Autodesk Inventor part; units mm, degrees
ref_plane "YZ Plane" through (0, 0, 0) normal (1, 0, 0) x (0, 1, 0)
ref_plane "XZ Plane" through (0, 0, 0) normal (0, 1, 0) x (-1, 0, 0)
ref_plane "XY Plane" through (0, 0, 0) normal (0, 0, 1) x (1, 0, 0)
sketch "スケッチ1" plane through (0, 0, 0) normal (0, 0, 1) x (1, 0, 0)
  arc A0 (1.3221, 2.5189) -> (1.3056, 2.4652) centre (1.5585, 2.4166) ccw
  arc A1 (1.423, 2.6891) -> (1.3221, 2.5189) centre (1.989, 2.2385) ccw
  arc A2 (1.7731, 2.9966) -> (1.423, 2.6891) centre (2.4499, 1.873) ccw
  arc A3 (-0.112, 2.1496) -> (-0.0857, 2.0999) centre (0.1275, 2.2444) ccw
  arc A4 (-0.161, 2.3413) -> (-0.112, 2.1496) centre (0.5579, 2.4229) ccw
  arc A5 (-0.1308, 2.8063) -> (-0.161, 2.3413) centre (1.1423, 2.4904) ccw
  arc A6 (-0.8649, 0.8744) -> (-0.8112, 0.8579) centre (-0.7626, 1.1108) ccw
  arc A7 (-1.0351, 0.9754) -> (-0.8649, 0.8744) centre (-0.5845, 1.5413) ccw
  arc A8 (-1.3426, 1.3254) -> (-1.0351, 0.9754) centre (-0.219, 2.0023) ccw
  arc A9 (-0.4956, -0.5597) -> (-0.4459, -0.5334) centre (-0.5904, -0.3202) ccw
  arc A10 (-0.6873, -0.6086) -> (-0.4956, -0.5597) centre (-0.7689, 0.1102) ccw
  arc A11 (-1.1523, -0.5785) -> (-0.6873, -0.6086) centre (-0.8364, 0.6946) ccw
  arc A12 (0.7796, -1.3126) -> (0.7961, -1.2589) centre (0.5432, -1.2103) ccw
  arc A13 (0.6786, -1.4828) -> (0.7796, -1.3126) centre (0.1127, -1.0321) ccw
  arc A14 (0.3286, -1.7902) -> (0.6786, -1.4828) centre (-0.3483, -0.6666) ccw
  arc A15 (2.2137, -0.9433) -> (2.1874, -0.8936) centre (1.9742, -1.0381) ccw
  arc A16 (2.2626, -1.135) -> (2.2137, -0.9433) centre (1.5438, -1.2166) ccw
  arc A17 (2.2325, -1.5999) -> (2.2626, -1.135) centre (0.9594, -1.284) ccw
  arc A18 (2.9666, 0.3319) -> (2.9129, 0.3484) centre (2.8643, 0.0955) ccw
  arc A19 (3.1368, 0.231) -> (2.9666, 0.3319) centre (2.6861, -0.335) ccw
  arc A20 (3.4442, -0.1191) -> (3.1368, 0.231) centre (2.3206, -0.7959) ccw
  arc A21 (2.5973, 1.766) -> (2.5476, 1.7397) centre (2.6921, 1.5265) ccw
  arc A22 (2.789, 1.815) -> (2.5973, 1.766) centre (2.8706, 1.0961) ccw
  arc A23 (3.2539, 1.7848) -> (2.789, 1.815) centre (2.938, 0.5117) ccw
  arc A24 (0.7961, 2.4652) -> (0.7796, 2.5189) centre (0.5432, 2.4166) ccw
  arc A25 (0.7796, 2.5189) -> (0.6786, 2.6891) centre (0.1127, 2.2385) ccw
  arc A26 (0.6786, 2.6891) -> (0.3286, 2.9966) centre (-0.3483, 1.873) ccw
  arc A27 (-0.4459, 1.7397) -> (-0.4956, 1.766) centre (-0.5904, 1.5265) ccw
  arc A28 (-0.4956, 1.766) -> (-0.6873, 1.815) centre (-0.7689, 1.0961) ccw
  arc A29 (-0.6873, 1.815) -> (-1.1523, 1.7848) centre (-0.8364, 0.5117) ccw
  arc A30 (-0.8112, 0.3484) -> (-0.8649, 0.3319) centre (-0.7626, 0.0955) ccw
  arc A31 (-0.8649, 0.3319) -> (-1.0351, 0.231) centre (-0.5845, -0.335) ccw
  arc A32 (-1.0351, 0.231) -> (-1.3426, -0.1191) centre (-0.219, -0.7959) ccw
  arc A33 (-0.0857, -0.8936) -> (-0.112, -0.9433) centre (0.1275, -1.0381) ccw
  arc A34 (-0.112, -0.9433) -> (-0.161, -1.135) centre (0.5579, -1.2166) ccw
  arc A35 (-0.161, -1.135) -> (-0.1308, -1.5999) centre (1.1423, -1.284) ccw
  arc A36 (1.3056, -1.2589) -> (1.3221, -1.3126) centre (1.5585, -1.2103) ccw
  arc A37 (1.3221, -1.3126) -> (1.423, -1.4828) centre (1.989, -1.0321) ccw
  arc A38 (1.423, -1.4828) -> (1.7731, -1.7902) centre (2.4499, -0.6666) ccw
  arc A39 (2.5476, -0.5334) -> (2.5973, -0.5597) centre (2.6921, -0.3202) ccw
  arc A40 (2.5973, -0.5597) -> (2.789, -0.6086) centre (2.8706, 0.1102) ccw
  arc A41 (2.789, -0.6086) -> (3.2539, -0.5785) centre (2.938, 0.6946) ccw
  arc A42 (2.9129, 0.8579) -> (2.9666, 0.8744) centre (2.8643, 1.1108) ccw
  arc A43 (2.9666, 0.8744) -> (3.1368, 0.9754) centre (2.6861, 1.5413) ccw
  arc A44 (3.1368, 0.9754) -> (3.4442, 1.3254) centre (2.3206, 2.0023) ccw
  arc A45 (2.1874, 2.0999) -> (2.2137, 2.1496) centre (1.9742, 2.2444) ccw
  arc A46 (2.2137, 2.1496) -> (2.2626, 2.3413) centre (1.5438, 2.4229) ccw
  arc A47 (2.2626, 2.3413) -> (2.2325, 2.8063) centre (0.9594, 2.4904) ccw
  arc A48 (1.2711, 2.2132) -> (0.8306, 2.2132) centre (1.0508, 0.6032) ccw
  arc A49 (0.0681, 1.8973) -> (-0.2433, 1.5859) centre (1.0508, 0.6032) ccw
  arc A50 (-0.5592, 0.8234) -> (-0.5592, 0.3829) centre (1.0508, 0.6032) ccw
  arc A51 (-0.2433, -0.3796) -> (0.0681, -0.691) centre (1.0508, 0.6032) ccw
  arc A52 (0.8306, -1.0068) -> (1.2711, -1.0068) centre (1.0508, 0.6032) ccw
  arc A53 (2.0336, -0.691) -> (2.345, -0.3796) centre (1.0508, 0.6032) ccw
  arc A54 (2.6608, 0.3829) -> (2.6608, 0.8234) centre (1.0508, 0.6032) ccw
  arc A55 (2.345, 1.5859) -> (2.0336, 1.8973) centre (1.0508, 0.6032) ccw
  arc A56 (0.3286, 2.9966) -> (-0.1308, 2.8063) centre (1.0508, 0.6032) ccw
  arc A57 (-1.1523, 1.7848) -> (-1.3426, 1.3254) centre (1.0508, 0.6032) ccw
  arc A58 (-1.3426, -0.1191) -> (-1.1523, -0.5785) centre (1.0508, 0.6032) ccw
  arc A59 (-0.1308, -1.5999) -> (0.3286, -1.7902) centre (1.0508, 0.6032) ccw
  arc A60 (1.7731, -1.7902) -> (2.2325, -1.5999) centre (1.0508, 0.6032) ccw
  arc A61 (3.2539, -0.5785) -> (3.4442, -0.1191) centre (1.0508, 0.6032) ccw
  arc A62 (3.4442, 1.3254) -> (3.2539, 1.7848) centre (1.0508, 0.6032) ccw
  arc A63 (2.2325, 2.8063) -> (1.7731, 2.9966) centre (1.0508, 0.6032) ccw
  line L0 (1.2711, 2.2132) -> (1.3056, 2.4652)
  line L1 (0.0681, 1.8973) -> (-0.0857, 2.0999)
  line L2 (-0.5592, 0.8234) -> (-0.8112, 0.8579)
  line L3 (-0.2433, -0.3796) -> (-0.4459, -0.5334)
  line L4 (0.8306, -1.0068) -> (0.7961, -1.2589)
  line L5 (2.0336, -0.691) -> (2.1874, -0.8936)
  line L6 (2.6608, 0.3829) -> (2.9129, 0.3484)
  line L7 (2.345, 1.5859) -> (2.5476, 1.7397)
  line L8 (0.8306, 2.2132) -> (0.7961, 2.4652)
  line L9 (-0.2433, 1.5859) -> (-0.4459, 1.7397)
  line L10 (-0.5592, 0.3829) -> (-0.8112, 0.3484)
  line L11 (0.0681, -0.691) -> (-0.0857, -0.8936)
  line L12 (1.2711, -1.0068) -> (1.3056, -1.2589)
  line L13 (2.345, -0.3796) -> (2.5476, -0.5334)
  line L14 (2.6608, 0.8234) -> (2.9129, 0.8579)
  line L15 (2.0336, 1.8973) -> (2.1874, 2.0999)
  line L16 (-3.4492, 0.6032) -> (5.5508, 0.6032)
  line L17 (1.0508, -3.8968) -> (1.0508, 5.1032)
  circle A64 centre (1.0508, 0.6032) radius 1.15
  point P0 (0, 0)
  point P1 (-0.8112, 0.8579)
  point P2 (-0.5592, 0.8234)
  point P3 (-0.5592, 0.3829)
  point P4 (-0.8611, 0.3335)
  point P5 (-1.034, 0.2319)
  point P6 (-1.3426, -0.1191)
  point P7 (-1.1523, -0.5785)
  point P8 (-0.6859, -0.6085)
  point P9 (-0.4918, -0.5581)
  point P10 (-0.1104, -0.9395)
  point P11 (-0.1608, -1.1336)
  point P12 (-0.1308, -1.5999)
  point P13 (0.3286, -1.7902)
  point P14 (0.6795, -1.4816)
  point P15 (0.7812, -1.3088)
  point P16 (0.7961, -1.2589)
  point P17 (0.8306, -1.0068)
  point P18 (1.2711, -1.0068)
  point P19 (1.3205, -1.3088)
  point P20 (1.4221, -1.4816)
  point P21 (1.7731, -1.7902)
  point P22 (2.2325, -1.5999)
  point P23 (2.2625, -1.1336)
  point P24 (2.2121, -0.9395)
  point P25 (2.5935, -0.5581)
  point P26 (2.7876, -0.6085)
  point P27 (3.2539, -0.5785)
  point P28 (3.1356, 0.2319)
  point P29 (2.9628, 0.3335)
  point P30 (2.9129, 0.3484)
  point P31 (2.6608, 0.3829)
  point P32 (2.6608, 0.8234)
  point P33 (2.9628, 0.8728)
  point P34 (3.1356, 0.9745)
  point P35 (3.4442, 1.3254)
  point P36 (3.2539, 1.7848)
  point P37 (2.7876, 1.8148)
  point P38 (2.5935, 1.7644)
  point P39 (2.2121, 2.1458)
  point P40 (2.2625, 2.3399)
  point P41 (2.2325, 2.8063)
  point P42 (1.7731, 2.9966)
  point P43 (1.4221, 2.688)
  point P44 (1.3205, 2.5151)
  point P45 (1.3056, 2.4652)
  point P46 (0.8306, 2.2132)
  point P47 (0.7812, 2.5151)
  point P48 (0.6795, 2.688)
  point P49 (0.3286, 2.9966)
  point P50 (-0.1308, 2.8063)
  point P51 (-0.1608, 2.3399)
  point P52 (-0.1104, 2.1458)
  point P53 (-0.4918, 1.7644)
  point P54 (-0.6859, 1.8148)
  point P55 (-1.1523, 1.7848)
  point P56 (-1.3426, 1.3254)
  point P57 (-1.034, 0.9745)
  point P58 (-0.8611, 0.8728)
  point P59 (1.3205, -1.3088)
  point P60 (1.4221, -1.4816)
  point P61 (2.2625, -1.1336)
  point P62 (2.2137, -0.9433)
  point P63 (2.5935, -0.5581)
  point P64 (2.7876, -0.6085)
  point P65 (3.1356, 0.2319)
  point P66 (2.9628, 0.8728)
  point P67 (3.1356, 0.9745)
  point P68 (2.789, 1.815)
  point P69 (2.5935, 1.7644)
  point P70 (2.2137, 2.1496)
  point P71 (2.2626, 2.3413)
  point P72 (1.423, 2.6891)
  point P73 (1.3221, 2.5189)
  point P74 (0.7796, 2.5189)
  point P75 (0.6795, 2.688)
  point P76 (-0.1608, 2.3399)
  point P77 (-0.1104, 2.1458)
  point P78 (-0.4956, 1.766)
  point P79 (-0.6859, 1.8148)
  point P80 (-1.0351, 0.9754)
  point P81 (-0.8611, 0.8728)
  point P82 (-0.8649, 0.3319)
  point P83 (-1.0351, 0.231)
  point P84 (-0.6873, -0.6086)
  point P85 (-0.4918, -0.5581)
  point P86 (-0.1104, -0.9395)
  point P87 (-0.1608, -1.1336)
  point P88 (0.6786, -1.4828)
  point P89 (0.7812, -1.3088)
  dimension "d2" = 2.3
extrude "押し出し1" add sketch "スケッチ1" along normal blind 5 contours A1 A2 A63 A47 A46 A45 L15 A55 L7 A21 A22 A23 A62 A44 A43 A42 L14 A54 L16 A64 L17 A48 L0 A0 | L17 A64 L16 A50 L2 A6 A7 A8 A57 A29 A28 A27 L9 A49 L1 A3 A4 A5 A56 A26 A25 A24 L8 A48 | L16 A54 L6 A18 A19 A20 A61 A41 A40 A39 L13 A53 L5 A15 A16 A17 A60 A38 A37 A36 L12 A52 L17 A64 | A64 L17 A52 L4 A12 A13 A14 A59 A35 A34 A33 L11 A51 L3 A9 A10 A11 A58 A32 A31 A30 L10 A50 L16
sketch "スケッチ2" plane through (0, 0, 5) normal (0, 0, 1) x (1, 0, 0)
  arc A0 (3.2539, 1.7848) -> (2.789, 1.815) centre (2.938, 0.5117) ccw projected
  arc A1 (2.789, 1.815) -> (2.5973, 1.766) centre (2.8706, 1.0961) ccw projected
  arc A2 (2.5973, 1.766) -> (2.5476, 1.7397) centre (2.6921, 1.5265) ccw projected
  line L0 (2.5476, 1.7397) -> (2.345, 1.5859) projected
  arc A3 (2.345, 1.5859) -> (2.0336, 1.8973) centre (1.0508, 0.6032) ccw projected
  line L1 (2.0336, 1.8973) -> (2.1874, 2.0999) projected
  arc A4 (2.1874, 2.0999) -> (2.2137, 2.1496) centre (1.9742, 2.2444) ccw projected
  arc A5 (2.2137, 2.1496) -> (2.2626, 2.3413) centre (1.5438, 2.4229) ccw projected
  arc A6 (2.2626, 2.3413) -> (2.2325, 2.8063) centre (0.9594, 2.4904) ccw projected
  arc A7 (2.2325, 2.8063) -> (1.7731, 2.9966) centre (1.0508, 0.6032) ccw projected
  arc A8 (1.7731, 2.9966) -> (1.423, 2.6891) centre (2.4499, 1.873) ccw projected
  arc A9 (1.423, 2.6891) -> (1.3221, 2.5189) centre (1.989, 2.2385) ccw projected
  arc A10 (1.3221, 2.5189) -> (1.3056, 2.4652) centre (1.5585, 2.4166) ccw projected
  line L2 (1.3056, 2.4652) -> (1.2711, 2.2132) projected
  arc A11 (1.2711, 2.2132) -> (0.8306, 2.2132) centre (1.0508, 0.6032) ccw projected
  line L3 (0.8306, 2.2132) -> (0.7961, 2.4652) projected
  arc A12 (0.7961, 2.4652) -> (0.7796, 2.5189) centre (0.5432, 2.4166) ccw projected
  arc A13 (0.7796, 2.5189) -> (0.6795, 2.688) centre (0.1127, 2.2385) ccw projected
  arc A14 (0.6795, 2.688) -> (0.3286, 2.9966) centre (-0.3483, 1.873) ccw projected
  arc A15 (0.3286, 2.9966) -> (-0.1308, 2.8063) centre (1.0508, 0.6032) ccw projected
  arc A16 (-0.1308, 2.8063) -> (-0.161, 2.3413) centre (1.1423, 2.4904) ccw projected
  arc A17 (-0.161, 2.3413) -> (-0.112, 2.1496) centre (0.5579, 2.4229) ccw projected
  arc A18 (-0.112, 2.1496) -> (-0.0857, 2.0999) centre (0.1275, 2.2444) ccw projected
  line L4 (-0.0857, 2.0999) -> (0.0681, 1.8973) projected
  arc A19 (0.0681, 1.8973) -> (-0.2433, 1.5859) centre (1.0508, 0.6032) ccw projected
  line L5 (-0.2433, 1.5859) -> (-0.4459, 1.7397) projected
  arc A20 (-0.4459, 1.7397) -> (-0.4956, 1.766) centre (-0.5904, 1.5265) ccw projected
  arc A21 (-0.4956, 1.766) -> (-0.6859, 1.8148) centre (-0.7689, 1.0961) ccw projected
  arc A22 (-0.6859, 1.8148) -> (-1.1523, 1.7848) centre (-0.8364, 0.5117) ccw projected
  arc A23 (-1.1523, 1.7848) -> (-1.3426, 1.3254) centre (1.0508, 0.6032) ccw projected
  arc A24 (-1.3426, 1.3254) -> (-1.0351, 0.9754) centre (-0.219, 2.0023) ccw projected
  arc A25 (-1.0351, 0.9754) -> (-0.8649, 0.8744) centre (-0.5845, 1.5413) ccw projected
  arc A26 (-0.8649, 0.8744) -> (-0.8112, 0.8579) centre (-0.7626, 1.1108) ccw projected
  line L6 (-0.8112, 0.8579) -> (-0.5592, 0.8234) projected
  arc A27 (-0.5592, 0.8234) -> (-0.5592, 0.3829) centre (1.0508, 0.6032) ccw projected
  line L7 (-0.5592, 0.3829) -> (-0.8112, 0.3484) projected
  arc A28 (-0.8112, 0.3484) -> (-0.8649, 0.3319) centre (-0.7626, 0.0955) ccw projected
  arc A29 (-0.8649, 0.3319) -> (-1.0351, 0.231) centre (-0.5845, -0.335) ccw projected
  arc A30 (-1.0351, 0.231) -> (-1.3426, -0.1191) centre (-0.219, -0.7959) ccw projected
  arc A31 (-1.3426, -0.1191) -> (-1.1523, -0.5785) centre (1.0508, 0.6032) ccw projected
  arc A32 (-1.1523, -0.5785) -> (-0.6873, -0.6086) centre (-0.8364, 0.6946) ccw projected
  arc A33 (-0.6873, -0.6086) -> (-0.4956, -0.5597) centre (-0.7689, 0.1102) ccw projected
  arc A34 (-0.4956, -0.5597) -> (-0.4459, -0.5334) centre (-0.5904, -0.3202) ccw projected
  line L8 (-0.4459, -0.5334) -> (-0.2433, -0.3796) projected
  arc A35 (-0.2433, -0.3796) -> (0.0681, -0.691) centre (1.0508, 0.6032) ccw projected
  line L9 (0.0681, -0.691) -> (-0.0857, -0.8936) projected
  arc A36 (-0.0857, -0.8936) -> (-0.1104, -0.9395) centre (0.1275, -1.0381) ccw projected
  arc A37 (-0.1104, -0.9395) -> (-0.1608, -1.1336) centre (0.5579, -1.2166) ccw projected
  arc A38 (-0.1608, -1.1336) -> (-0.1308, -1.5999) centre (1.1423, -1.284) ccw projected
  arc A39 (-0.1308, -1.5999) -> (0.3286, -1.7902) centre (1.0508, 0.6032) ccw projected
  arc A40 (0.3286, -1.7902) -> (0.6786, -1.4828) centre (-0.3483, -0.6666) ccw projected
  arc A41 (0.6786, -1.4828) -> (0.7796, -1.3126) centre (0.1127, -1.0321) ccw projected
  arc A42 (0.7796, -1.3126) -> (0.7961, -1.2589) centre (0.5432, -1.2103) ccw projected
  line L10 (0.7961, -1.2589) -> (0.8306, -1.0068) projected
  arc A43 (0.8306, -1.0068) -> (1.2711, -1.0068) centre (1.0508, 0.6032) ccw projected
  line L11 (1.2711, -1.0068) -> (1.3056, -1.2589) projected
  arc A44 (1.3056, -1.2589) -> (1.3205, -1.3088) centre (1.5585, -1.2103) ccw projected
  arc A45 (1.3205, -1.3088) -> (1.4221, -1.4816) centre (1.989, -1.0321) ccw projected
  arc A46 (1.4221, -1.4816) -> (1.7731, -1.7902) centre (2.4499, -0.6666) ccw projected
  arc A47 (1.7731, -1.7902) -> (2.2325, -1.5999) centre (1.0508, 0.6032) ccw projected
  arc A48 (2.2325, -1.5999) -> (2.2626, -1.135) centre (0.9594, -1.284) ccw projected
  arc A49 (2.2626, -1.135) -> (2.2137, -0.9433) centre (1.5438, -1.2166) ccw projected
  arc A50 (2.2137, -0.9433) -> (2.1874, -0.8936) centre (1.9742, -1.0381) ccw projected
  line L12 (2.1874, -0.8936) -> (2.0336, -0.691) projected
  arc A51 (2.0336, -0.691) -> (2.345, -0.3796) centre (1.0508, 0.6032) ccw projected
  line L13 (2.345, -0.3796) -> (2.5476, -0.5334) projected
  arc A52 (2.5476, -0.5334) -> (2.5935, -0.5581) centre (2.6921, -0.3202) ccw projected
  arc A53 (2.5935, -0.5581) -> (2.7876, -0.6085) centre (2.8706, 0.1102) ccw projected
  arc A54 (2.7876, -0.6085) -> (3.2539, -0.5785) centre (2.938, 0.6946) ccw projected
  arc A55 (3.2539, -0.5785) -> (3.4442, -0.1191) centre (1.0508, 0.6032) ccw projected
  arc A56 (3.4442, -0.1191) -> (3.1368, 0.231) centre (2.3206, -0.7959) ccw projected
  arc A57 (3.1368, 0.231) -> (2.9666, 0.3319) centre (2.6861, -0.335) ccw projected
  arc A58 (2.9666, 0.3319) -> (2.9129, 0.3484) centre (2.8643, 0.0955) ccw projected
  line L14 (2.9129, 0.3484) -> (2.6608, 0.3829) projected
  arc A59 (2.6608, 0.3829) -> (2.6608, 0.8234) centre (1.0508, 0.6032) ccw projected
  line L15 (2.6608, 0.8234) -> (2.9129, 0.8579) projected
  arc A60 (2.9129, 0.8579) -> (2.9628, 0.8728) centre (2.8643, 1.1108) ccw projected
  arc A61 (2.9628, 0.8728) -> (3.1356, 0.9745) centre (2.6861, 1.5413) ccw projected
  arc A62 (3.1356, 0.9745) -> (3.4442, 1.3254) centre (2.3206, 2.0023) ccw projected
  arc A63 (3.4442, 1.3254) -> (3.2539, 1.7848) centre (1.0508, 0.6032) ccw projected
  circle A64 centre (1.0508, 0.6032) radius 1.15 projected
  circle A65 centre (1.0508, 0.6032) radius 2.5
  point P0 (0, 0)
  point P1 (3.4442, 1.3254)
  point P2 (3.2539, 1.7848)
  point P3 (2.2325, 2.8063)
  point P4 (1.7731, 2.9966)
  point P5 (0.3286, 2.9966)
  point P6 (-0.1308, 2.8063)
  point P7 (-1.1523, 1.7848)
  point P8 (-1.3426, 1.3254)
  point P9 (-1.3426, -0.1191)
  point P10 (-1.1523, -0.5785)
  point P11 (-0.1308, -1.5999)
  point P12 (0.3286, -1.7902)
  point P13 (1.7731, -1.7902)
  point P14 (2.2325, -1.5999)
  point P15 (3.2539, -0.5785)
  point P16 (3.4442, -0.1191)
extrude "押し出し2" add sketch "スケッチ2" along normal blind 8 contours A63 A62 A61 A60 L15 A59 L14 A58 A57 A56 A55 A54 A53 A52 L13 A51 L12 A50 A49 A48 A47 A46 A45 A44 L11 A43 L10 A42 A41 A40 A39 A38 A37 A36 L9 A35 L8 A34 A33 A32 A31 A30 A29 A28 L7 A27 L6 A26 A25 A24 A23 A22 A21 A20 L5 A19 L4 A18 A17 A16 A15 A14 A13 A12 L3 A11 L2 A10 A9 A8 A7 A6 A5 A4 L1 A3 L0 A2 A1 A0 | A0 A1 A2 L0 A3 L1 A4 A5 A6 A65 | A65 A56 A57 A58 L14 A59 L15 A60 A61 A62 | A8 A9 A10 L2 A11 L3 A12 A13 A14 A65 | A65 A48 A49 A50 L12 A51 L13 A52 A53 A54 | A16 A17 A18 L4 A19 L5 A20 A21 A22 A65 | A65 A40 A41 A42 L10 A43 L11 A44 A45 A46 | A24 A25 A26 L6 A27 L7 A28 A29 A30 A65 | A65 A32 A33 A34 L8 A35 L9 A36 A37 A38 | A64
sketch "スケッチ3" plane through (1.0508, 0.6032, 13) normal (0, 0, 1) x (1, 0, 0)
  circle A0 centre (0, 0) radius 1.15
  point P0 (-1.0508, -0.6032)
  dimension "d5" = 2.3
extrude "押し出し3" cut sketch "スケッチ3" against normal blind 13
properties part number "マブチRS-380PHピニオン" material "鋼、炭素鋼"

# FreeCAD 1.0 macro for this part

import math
import FreeCAD as App
import Part
import Sketcher
from FreeCAD import Vector

doc = App.newDocument("Part")
body = doc.addObject("PartDesign::Body", "Body")

sketch1 = doc.addObject("Sketcher::SketchObject", "Sketch")
body.addObject(sketch1)
sketch1.AttachmentSupport = (doc.XY_Plane, [""])
sketch1.MapMode = "FlatFace"
sketch1.addGeometry([
    Part.ArcOfCircle(Part.Circle(Vector(1.989, 2.2385, 0), Vector(0, 0, 1), 0.723461), math.radians(141.476245), math.radians(157.195542)),
    Part.ArcOfCircle(Part.Circle(Vector(1.554016, 2.418256, 0), Vector(0, 0, 1), 0.252813), math.radians(156.540719), math.radians(169.298813)),
    Part.LineSegment(Vector(1.3056, 2.4652, 0), Vector(1.2711, 2.2132, 0)),
    Part.ArcOfCircle(Part.Circle(Vector(1.0508, 0.6032, 0), Vector(0, 0, 1), 1.624929), math.radians(82.208474), math.radians(97.788033)),
    Part.LineSegment(Vector(0.8306, 2.2132, 0), Vector(0.7961, 2.4652, 0)),
    Part.ArcOfCircle(Part.Circle(Vector(0.538385, 2.415399, 0), Vector(0, 0, 1), 0.262483), math.radians(10.937125), math.radians(23.223342)),
    Part.ArcOfCircle(Part.Circle(Vector(0.115864, 2.240094, 0), Vector(0, 0, 1), 0.719916), math.radians(22.785129), math.radians(38.586312)),
    Part.ArcOfCircle(Part.Circle(Vector(-0.349415, 1.871938, 0), Vector(0, 0, 1), 1.313228), math.radians(38.480926), math.radians(58.915843)),
    Part.ArcOfCircle(Part.Circle(Vector(1.050066, 0.605257, 0), Vector(0, 0, 1), 2.497806), math.radians(106.788509), math.radians(118.213682)),
    Part.ArcOfCircle(Part.Circle(Vector(1.145223, 2.489946, 0), Vector(0, 0, 1), 1.314654), math.radians(166.075896), math.radians(186.492251)),
    Part.ArcOfCircle(Part.Circle(Vector(0.5579, 2.4229, 0), Vector(0, 0, 1), 0.723516), math.radians(-173.524258), math.radians(-157.805948)),
    Part.ArcOfCircle(Part.Circle(Vector(0.125624, 2.243536, 0), Vector(0, 0, 1), 0.255517), math.radians(-158.430439), math.radians(-145.796208)),
    Part.LineSegment(Vector(-0.0857, 2.0999, 0), Vector(0.0681, 1.8973, 0)),
    Part.ArcOfCircle(Part.Circle(Vector(1.0508, 0.6032, 0), Vector(0, 0, 1), 1.624929), math.radians(127.211926), math.radians(142.788074)),
    Part.LineSegment(Vector(-0.2433, 1.5859, 0), Vector(-0.4459, 1.7397, 0)),
    Part.ArcOfCircle(Part.Circle(Vector(-0.591481, 1.524701, 0), Vector(0, 0, 1), 0.259651), math.radians(55.897181), math.radians(68.329466)),
    Part.ArcOfCircle(Part.Circle(Vector(-0.7689, 1.0961, 0), Vector(0, 0, 1), 0.723505), math.radians(67.805948), math.radians(83.524258)),
    Part.ArcOfCircle(Part.Circle(Vector(-0.836327, 0.514644, 0), Vector(0, 0, 1), 1.308867), math.radians(83.462131), math.radians(103.969722)),
    Part.ArcOfCircle(Part.Circle(Vector(1.052777, 0.602263, 0), Vector(0, 0, 1), 2.502151), math.radians(151.79627), math.radians(163.201539)),
    Part.ArcOfCircle(Part.Circle(Vector(-0.22024, 2.001393, 0), Vector(0, 0, 1), 1.310213), math.radians(-148.939607), math.radians(-128.457162)),
    Part.ArcOfCircle(Part.Circle(Vector(-0.582469, 1.544245, 0), Vector(0, 0, 1), 0.726952), math.radians(-128.509359), math.radians(-112.862081)),
    Part.ArcOfCircle(Part.Circle(Vector(-0.764256, 1.106316, 0), Vector(0, 0, 1), 0.252813), math.radians(-113.459281), math.radians(-100.701187)),
    Part.LineSegment(Vector(-0.8112, 0.8579, 0), Vector(-0.5592, 0.8234, 0)),
    Part.ArcOfCircle(Part.Circle(Vector(1.0508, 0.6032, 0), Vector(0, 0, 1), 1.625069), math.radians(172.211967), math.radians(187.791526)),
    Part.LineSegment(Vector(-0.5592, 0.3829, 0), Vector(-0.8112, 0.3484, 0)),
    Part.ArcOfCircle(Part.Circle(Vector(-0.761399, 0.090685, 0), Vector(0, 0, 1), 0.262483), math.radians(100.937125), math.radians(113.223342)),
    Part.ArcOfCircle(Part.Circle(Vector(-0.5845, -0.335, 0), Vector(0, 0, 1), 0.72345), math.radians(112.804458), math.radians(128.523755)),
    Part.ArcOfCircle(Part.Circle(Vector(-0.219, -0.7959, 0), Vector(0, 0, 1), 1.311695), math.radians(128.474938), math.radians(148.93736)),
    Part.ArcOfCircle(Part.Circle(Vector(1.0508, 0.6032, 0), Vector(0, 0, 1), 2.499966), math.radians(-163.206803), math.radians(-151.791756)),
    Part.ArcOfCircle(Part.Circle(Vector(-0.8364, 0.6946, 0), Vector(0, 0, 1), 1.311707), math.radians(-103.9356), math.radians(-83.473131)),
    Part.ArcOfCircle(Part.Circle(Vector(-0.769751, 0.114833, 0), Vector(0, 0, 1), 0.728116), math.radians(-83.497965), math.radians(-67.88167)),
    Part.ArcOfCircle(Part.Circle(Vector(-0.589536, -0.322076, 0), Vector(0, 0, 1), 0.255517), math.radians(-68.430439), math.radians(-55.796208)),
    Part.LineSegment(Vector(-0.4459, -0.5334, 0), Vector(-0.2433, -0.3796, 0)),
    Part.ArcOfCircle(Part.Circle(Vector(1.051585, 0.603885, 0), Vector(0, 0, 1), 1.626029), math.radians(-142.782772), math.radians(-127.217228)),
    Part.LineSegment(Vector(0.0681, -0.691, 0), Vector(-0.0857, -0.8936, 0)),
    Part.ArcOfCircle(Part.Circle(Vector(0.129299, -1.039181, 0), Vector(0, 0, 1), 0.259651), math.radians(145.897181), math.radians(158.329466)),
    Part.ArcOfCircle(Part.Circle(Vector(0.5579, -1.2166, 0), Vector(0, 0, 1), 0.723505), math.radians(157.805948), math.radians(173.524258)),
    Part.ArcOfCircle(Part.Circle(Vector(1.139712, -1.283936, 0), Vector(0, 0, 1), 1.309211), math.radians(173.467866), math.radians(193.965581)),
    Part.ArcOfCircle(Part.Circle(Vector(1.051737, 0.605177, 0), Vector(0, 0, 1), 2.502151), math.radians(-118.20373), math.radians(-106.798461)),
    Part.ArcOfCircle(Part.Circle(Vector(-0.3483, -0.6666, 0), Vector(0, 0, 1), 1.311743), math.radians(-58.933618), math.radians(-38.478357)),
    Part.ArcOfCircle(Part.Circle(Vector(0.110796, -1.030787, 0), Vector(0, 0, 1), 0.725753), math.radians(-38.522367), math.radians(-22.849073)),
    Part.ArcOfCircle(Part.Circle(Vector(0.547684, -1.211956, 0), Vector(0, 0, 1), 0.252813), math.radians(-23.459281), math.radians(-10.701187)),
    Part.LineSegment(Vector(0.7961, -1.2589, 0), Vector(0.8306, -1.0068, 0)),
    Part.ArcOfCircle(Part.Circle(Vector(1.0508, 0.6032, 0), Vector(0, 0, 1), 1.625069), math.radians(-97.788033), math.radians(-82.208474)),
    Part.LineSegment(Vector(1.2711, -1.0068, 0), Vector(1.3056, -1.2589, 0)),
    Part.ArcOfCircle(Part.Circle(Vector(1.563315, -1.209099, 0), Vector(0, 0, 1), 0.262483), math.radians(-169.062875), math.radians(-156.776658)),
    Part.ArcOfCircle(Part.Circle(Vector(1.990672, -1.031258, 0), Vector(0, 0, 1), 0.725356), math.radians(-157.17811), math.radians(-141.500255)),
    Part.ArcOfCircle(Part.Circle(Vector(2.448413, -0.668016, 0), Vector(0, 0, 1), 1.309712), math.radians(-141.529652), math.radians(-121.038868)),
    Part.ArcOfCircle(Part.Circle(Vector(1.0508, 0.6032, 0), Vector(0, 0, 1), 2.499966), math.radians(-73.206803), math.radians(-61.791756)),
    Part.ArcOfCircle(Part.Circle(Vector(0.9594, -1.284, 0), Vector(0, 0, 1), 1.311707), math.radians(-13.9356), math.radians(6.52253)),
    Part.ArcOfCircle(Part.Circle(Vector(1.539167, -1.217451, 0), Vector(0, 0, 1), 0.728116), math.radians(6.502035), math.radians(22.11833)),
    Part.ArcOfCircle(Part.Circle(Vector(1.976076, -1.037236, 0), Vector(0, 0, 1), 0.255517), math.radians(21.569561), math.radians(34.203792)),
    Part.LineSegment(Vector(2.1874, -0.8936, 0), Vector(2.0336, -0.691, 0)),
    Part.ArcOfCircle(Part.Circle(Vector(1.0508, 0.6032, 0), Vector(0, 0, 1), 1.625069), math.radians(-52.787398), math.radians(-37.212602)),
    Part.LineSegment(Vector(2.345, -0.3796, 0), Vector(2.5476, -0.5334, 0)),
    Part.ArcOfCircle(Part.Circle(Vector(2.693181, -0.318401, 0), Vector(0, 0, 1), 0.259651), math.radians(-124.102819), math.radians(-111.670534)),
    Part.ArcOfCircle(Part.Circle(Vector(2.869143, 0.105784, 0), Vector(0, 0, 1), 0.718865), math.radians(-112.219451), math.radians(-96.400913)),
    Part.ArcOfCircle(Part.Circle(Vector(2.938, 0.6946, 0), Vector(0, 0, 1), 1.31169), math.radians(-96.52253), math.radians(-76.0644)),
    Part.ArcOfCircle(Part.Circle(Vector(1.0508, 0.6032, 0), Vector(0, 0, 1), 2.500016), math.radians(-28.208244), math.radians(-16.793197)),
    Part.ArcOfCircle(Part.Circle(Vector(2.318937, -0.797116, 0), Vector(0, 0, 1), 1.313743), math.radians(31.070649), math.radians(51.497871)),
    Part.ArcOfCircle(Part.Circle(Vector(2.687157, -0.333467, 0), Vector(0, 0, 1), 0.721666), math.radians(51.459917), math.radians(67.218448)),
    Part.ArcOfCircle(Part.Circle(Vector(2.865956, 0.099984, 0), Vector(0, 0, 1), 0.252813), math.radians(66.540719), math.radians(79.298813)),
    Part.LineSegment(Vector(2.9129, 0.3484, 0), Vector(2.6608, 0.3829, 0)),
    Part.ArcOfCircle(Part.Circle(Vector(1.0508, 0.6032, 0), Vector(0, 0, 1), 1.624929), math.radians(-7.791526), math.radians(7.788033)),
    Part.LineSegment(Vector(2.6608, 0.8234, 0), Vector(2.9129, 0.8579, 0)),
    Part.ArcOfCircle(Part.Circle(Vector(2.863099, 1.115615, 0), Vector(0, 0, 1), 0.262483), math.radians(-79.062875), math.radians(-66.776658)),
    Part.ArcOfCircle(Part.Circle(Vector(2.687134, 1.539247, 0), Vector(0, 0, 1), 0.721196), math.radians(-67.200759), math.radians(-51.4278)),
    Part.ArcOfCircle(Part.Circle(Vector(2.3206, 2.0023, 0), Vector(0, 0, 1), 1.311757), math.radians(-51.521643), math.radians(-31.066382)),
    Part.ArcOfCircle(Part.Circle(Vector(1.052857, 0.603934, 0), Vector(0, 0, 1), 2.497806), math.radians(16.788509), math.radians(28.213682)),
    Part.ArcOfCircle(Part.Circle(Vector(2.937601, 0.509132, 0), Vector(0, 0, 1), 1.314296), math.radians(76.074501), math.radians(96.492052)),
    Part.ArcOfCircle(Part.Circle(Vector(2.8706, 1.0961, 0), Vector(0, 0, 1), 0.723516), math.radians(96.475742), math.radians(112.194052)),
    Part.ArcOfCircle(Part.Circle(Vector(2.691236, 1.528376, 0), Vector(0, 0, 1), 0.255517), math.radians(111.569561), math.radians(124.203792)),
    Part.LineSegment(Vector(2.5476, 1.7397, 0), Vector(2.345, 1.5859, 0)),
    Part.ArcOfCircle(Part.Circle(Vector(1.0508, 0.6032, 0), Vector(0, 0, 1), 1.624929), math.radians(37.209794), math.radians(52.785266)),
    Part.LineSegment(Vector(2.0336, 1.8973, 0), Vector(2.1874, 2.0999, 0)),
    Part.ArcOfCircle(Part.Circle(Vector(1.972401, 2.245481, 0), Vector(0, 0, 1), 0.259651), math.radians(-34.102819), math.radians(-21.670534)),
    Part.ArcOfCircle(Part.Circle(Vector(1.548216, 2.421443, 0), Vector(0, 0, 1), 0.718865), math.radians(-22.219451), math.radians(-6.400913)),
    Part.ArcOfCircle(Part.Circle(Vector(0.9594, 2.4904, 0), Vector(0, 0, 1), 1.311702), math.radians(-6.526869), math.radians(13.9356)),
    Part.ArcOfCircle(Part.Circle(Vector(1.0508, 0.6032, 0), Vector(0, 0, 1), 2.500016), math.radians(61.791756), math.radians(73.206803)),
    Part.ArcOfCircle(Part.Circle(Vector(2.4499, 1.873, 0), Vector(0, 0, 1), 1.311692), math.radians(121.06264), math.radians(141.525062)),
    Part.Circle(Vector(1.0508, 0.6032, 0), Vector(0, 0, 1), 1.15),
], False)
sketch1.addConstraint([
    Sketcher.Constraint("Coincident", 0, 2, 1, 1),
    Sketcher.Constraint("Coincident", 1, 2, 2, 1),
    Sketcher.Constraint("Coincident", 2, 2, 3, 1),
    Sketcher.Constraint("Coincident", 3, 2, 4, 1),
    Sketcher.Constraint("Coincident", 4, 2, 5, 1),
    Sketcher.Constraint("Coincident", 5, 2, 6, 1),
    Sketcher.Constraint("Coincident", 6, 2, 7, 1),
    Sketcher.Constraint("Coincident", 7, 2, 8, 1),
    Sketcher.Constraint("Coincident", 8, 2, 9, 1),
    Sketcher.Constraint("Tangent", 9, 2, 10, 1),
    Sketcher.Constraint("Coincident", 10, 2, 11, 1),
    Sketcher.Constraint("Coincident", 11, 2, 12, 1),
    Sketcher.Constraint("Coincident", 12, 2, 13, 1),
    Sketcher.Constraint("Coincident", 13, 2, 14, 1),
    Sketcher.Constraint("Coincident", 14, 2, 15, 1),
    Sketcher.Constraint("Coincident", 15, 2, 16, 1),
    Sketcher.Constraint("Coincident", 16, 2, 17, 1),
    Sketcher.Constraint("Coincident", 17, 2, 18, 1),
    Sketcher.Constraint("Coincident", 18, 2, 19, 1),
    Sketcher.Constraint("Coincident", 19, 2, 20, 1),
    Sketcher.Constraint("Coincident", 20, 2, 21, 1),
    Sketcher.Constraint("Coincident", 21, 2, 22, 1),
    Sketcher.Constraint("Coincident", 22, 2, 23, 1),
    Sketcher.Constraint("Coincident", 23, 2, 24, 1),
    Sketcher.Constraint("Coincident", 24, 2, 25, 1),
    Sketcher.Constraint("Coincident", 25, 2, 26, 1),
    Sketcher.Constraint("Coincident", 26, 2, 27, 1),
    Sketcher.Constraint("Coincident", 27, 2, 28, 1),
    Sketcher.Constraint("Coincident", 28, 2, 29, 1),
    Sketcher.Constraint("Tangent", 29, 2, 30, 1),
    Sketcher.Constraint("Coincident", 30, 2, 31, 1),
    Sketcher.Constraint("Coincident", 31, 2, 32, 1),
    Sketcher.Constraint("Coincident", 32, 2, 33, 1),
    Sketcher.Constraint("Coincident", 33, 2, 34, 1),
    Sketcher.Constraint("Coincident", 34, 2, 35, 1),
    Sketcher.Constraint("Coincident", 35, 2, 36, 1),
    Sketcher.Constraint("Coincident", 36, 2, 37, 1),
    Sketcher.Constraint("Coincident", 37, 2, 38, 1),
    Sketcher.Constraint("Coincident", 38, 2, 39, 1),
    Sketcher.Constraint("Coincident", 39, 2, 40, 1),
    Sketcher.Constraint("Coincident", 40, 2, 41, 1),
    Sketcher.Constraint("Coincident", 41, 2, 42, 1),
    Sketcher.Constraint("Coincident", 42, 2, 43, 1),
    Sketcher.Constraint("Coincident", 43, 2, 44, 1),
    Sketcher.Constraint("Coincident", 44, 2, 45, 1),
    Sketcher.Constraint("Coincident", 45, 2, 46, 1),
    Sketcher.Constraint("Coincident", 46, 2, 47, 1),
    Sketcher.Constraint("Coincident", 47, 2, 48, 1),
    Sketcher.Constraint("Coincident", 48, 2, 49, 1),
    Sketcher.Constraint("Tangent", 49, 2, 50, 1),
    Sketcher.Constraint("Coincident", 50, 2, 51, 1),
    Sketcher.Constraint("Coincident", 51, 2, 52, 1),
    Sketcher.Constraint("Coincident", 52, 2, 53, 1),
    Sketcher.Constraint("Coincident", 53, 2, 54, 1),
    Sketcher.Constraint("Coincident", 54, 2, 55, 1),
    Sketcher.Constraint("Coincident", 55, 2, 56, 1),
    Sketcher.Constraint("Coincident", 56, 2, 57, 1),
    Sketcher.Constraint("Coincident", 57, 2, 58, 1),
    Sketcher.Constraint("Coincident", 58, 2, 59, 1),
    Sketcher.Constraint("Coincident", 59, 2, 60, 1),
    Sketcher.Constraint("Coincident", 60, 2, 61, 1),
    Sketcher.Constraint("Coincident", 61, 2, 62, 1),
    Sketcher.Constraint("Coincident", 62, 2, 63, 1),
    Sketcher.Constraint("Coincident", 63, 2, 64, 1),
    Sketcher.Constraint("Coincident", 64, 2, 65, 1),
    Sketcher.Constraint("Coincident", 65, 2, 66, 1),
    Sketcher.Constraint("Coincident", 66, 2, 67, 1),
    Sketcher.Constraint("Coincident", 67, 2, 68, 1),
    Sketcher.Constraint("Coincident", 68, 2, 69, 1),
    Sketcher.Constraint("Tangent", 69, 2, 70, 1),
    Sketcher.Constraint("Coincident", 70, 2, 71, 1),
    Sketcher.Constraint("Coincident", 71, 2, 72, 1),
    Sketcher.Constraint("Coincident", 72, 2, 73, 1),
    Sketcher.Constraint("Coincident", 73, 2, 74, 1),
    Sketcher.Constraint("Coincident", 74, 2, 75, 1),
    Sketcher.Constraint("Coincident", 75, 2, 76, 1),
    Sketcher.Constraint("Coincident", 76, 2, 77, 1),
    Sketcher.Constraint("Coincident", 77, 2, 78, 1),
    Sketcher.Constraint("Coincident", 78, 2, 79, 1),
    Sketcher.Constraint("Coincident", 79, 2, 0, 1),
    Sketcher.Constraint("Coincident", 13, 3, 3, 3),
    Sketcher.Constraint("Coincident", 23, 3, 3, 3),
    Sketcher.Constraint("Coincident", 28, 3, 3, 3),
    Sketcher.Constraint("Coincident", 43, 3, 3, 3),
    Sketcher.Constraint("Coincident", 48, 3, 3, 3),
    Sketcher.Constraint("Coincident", 53, 3, 3, 3),
    Sketcher.Constraint("Coincident", 58, 3, 3, 3),
    Sketcher.Constraint("Coincident", 63, 3, 3, 3),
    Sketcher.Constraint("Coincident", 73, 3, 3, 3),
    Sketcher.Constraint("Coincident", 78, 3, 3, 3),
    Sketcher.Constraint("Coincident", 80, 3, 3, 3),
    Sketcher.Constraint("Equal", 0, 10),
    Sketcher.Constraint("Equal", 3, 13),
    Sketcher.Constraint("Equal", 10, 16),
    Sketcher.Constraint("Equal", 1, 21),
    Sketcher.Constraint("Equal", 13, 23),
    Sketcher.Constraint("Equal", 5, 25),
    Sketcher.Constraint("Equal", 16, 26),
    Sketcher.Constraint("Equal", 27, 29),
    Sketcher.Constraint("Equal", 11, 31),
    Sketcher.Constraint("Equal", 15, 35),
    Sketcher.Constraint("Equal", 26, 36),
    Sketcher.Constraint("Equal", 18, 38),
    Sketcher.Constraint("Equal", 29, 39),
    Sketcher.Constraint("Equal", 21, 41),
    Sketcher.Constraint("Equal", 23, 43),
    Sketcher.Constraint("Equal", 25, 45),
    Sketcher.Constraint("Equal", 28, 48),
    Sketcher.Constraint("Equal", 39, 49),
    Sketcher.Constraint("Equal", 30, 50),
    Sketcher.Constraint("Equal", 31, 51),
    Sketcher.Constraint("Equal", 43, 53),
    Sketcher.Constraint("Equal", 35, 55),
    Sketcher.Constraint("Equal", 49, 57),
    Sketcher.Constraint("Equal", 48, 58),
    Sketcher.Constraint("Equal", 41, 61),
    Sketcher.Constraint("Equal", 53, 63),
    Sketcher.Constraint("Equal", 45, 65),
    Sketcher.Constraint("Equal", 57, 67),
    Sketcher.Constraint("Equal", 8, 68),
    Sketcher.Constraint("Equal", 36, 70),
    Sketcher.Constraint("Equal", 51, 71),
    Sketcher.Constraint("Equal", 63, 73),
    Sketcher.Constraint("Equal", 55, 75),
    Sketcher.Constraint("Equal", 56, 76),
    Sketcher.Constraint("Equal", 67, 77),
    Sketcher.Constraint("Equal", 58, 78),
    Sketcher.Constraint("Equal", 77, 79),
    Sketcher.Constraint("Perpendicular", 2, 22),
    Sketcher.Constraint("Perpendicular", 4, 24),
    Sketcher.Constraint("Perpendicular", 12, 32),
    Sketcher.Constraint("Perpendicular", 14, 34),
    Sketcher.Constraint("Perpendicular", 22, 42),
    Sketcher.Constraint("Perpendicular", 24, 44),
    Sketcher.Constraint("Perpendicular", 32, 52),
    Sketcher.Constraint("Perpendicular", 34, 54),
    Sketcher.Constraint("Perpendicular", 42, 62),
    Sketcher.Constraint("Perpendicular", 44, 64),
    Sketcher.Constraint("Perpendicular", 52, 72),
    Sketcher.Constraint("Perpendicular", 54, 74),
    Sketcher.Constraint("Horizontal", 8, 3, 38, 3),
    Sketcher.Constraint("Horizontal", 37, 3, 49, 3),
    Sketcher.Constraint("Horizontal", 29, 3, 57, 3),
    Sketcher.Constraint("Horizontal", 33, 3, 68, 3),
    Sketcher.Constraint("Horizontal", 16, 3, 70, 3),
    Sketcher.Constraint("Horizontal", 2, 2, 3, 2),
    Sketcher.Constraint("Horizontal", 1, 2, 4, 2),
    Sketcher.Constraint("Horizontal", 0, 2, 5, 2),
    Sketcher.Constraint("Horizontal", 42, 2, 43, 2),
    Sketcher.Constraint("Horizontal", 41, 2, 44, 2),
    Sketcher.Constraint("Horizontal", 40, 2, 45, 2),
    Sketcher.Constraint("Horizontal", 39, 2, 46, 2),
    Sketcher.Constraint("Horizontal", 38, 2, 47, 2),
    Sketcher.Constraint("Horizontal", 37, 2, 48, 2),
    Sketcher.Constraint("Horizontal", 36, 2, 49, 2),
    Sketcher.Constraint("Horizontal", 35, 2, 50, 2),
    Sketcher.Constraint("Horizontal", 34, 2, 51, 2),
    Sketcher.Constraint("Horizontal", 33, 2, 52, 2),
    Sketcher.Constraint("Horizontal", 32, 2, 53, 2),
    Sketcher.Constraint("Horizontal", 31, 2, 54, 2),
    Sketcher.Constraint("Horizontal", 30, 2, 55, 2),
    Sketcher.Constraint("Horizontal", 29, 2, 56, 2),
    Sketcher.Constraint("Horizontal", 28, 2, 57, 2),
    Sketcher.Constraint("Horizontal", 27, 2, 58, 2),
    Sketcher.Constraint("Horizontal", 26, 2, 59, 2),
    Sketcher.Constraint("Horizontal", 25, 2, 60, 2),
    Sketcher.Constraint("Horizontal", 24, 2, 61, 2),
    Sketcher.Constraint("Horizontal", 23, 2, 62, 2),
    Sketcher.Constraint("Horizontal", 22, 2, 63, 2),
    Sketcher.Constraint("Horizontal", 21, 2, 64, 2),
    Sketcher.Constraint("Horizontal", 20, 2, 65, 2),
    Sketcher.Constraint("Horizontal", 19, 2, 66, 2),
    Sketcher.Constraint("Horizontal", 18, 2, 67, 2),
    Sketcher.Constraint("Horizontal", 17, 2, 68, 2),
    Sketcher.Constraint("Horizontal", 16, 2, 69, 2),
    Sketcher.Constraint("Horizontal", 15, 2, 70, 2),
    Sketcher.Constraint("Horizontal", 14, 2, 71, 2),
    Sketcher.Constraint("Horizontal", 13, 2, 72, 2),
    Sketcher.Constraint("Horizontal", 12, 2, 73, 2),
    Sketcher.Constraint("Horizontal", 11, 2, 74, 2),
    Sketcher.Constraint("Horizontal", 10, 2, 75, 2),
    Sketcher.Constraint("Horizontal", 9, 2, 76, 2),
    Sketcher.Constraint("Horizontal", 8, 2, 77, 2),
    Sketcher.Constraint("Horizontal", 7, 2, 78, 2),
    Sketcher.Constraint("Horizontal", 6, 2, 79, 2),
    Sketcher.Constraint("Vertical", 17, 3, 29, 3),
    Sketcher.Constraint("Vertical", 10, 3, 36, 3),
    Sketcher.Constraint("Vertical", 33, 3, 38, 3),
    Sketcher.Constraint("Vertical", 60, 3, 66, 3),
    Sketcher.Constraint("Vertical", 18, 3, 68, 3),
    Sketcher.Constraint("Vertical", 49, 3, 77, 3),
    Sketcher.Constraint("Vertical", 22, 2, 23, 2),
    Sketcher.Constraint("Vertical", 21, 2, 24, 2),
    Sketcher.Constraint("Vertical", 20, 2, 25, 2),
    Sketcher.Constraint("Vertical", 19, 2, 26, 2),
    Sketcher.Constraint("Vertical", 18, 2, 27, 2),
    Sketcher.Constraint("Vertical", 17, 2, 28, 2),
    Sketcher.Constraint("Vertical", 16, 2, 29, 2),
    Sketcher.Constraint("Vertical", 15, 2, 30, 2),
    Sketcher.Constraint("Vertical", 14, 2, 31, 2),
    Sketcher.Constraint("Vertical", 13, 2, 32, 2),
    Sketcher.Constraint("Vertical", 12, 2, 33, 2),
    Sketcher.Constraint("Vertical", 11, 2, 34, 2),
    Sketcher.Constraint("Vertical", 10, 2, 35, 2),
    Sketcher.Constraint("Vertical", 9, 2, 36, 2),
    Sketcher.Constraint("Vertical", 8, 2, 37, 2),
    Sketcher.Constraint("Vertical", 7, 2, 38, 2),
    Sketcher.Constraint("Vertical", 6, 2, 39, 2),
    Sketcher.Constraint("Vertical", 5, 2, 40, 2),
    Sketcher.Constraint("Vertical", 4, 2, 41, 2),
    Sketcher.Constraint("Vertical", 3, 2, 42, 2),
    Sketcher.Constraint("Vertical", 1, 2, 44, 2),
    Sketcher.Constraint("Vertical", 0, 2, 45, 2),
    Sketcher.Constraint("Vertical", 60, 2, 65, 2),
    Sketcher.Constraint("Vertical", 59, 2, 66, 2),
    Sketcher.Constraint("Vertical", 58, 2, 67, 2),
    Sketcher.Constraint("Vertical", 57, 2, 68, 2),
    Sketcher.Constraint("Vertical", 56, 2, 69, 2),
    Sketcher.Constraint("Vertical", 55, 2, 70, 2),
    Sketcher.Constraint("Vertical", 54, 2, 71, 2),
    Sketcher.Constraint("Vertical", 53, 2, 72, 2),
    Sketcher.Constraint("Vertical", 52, 2, 73, 2),
    Sketcher.Constraint("Vertical", 50, 2, 75, 2),
    Sketcher.Constraint("Vertical", 49, 2, 76, 2),
    Sketcher.Constraint("Vertical", 48, 2, 77, 2),
    Sketcher.Constraint("Vertical", 47, 2, 78, 2),
    Sketcher.Constraint("Vertical", 46, 2, 79, 2),
    Sketcher.Constraint("Equal", 4, 12),
    Sketcher.Constraint("Equal", 12, 14),
    Sketcher.Constraint("Equal", 14, 22),
    Sketcher.Constraint("Diameter", 80, 2.3),
    Sketcher.Constraint("Radius", 28, 2.5),
    Sketcher.Constraint("Radius", 6, 0.72),
    Sketcher.Constraint("Radius", 3, 1.625),
    Sketcher.Constraint("Radius", 20, 0.727),
    Sketcher.Constraint("Radius", 30, 0.728),
    Sketcher.Constraint("Radius", 33, 1.626),
    Sketcher.Constraint("DistanceY", -1, 1, 61, 3, 0.1),
    Sketcher.Constraint("DistanceY", -1, 1, 11, 2, 2.1),
    Sketcher.Constraint("DistanceY", 37, 2, -1, 1, 1.6),
    Sketcher.Constraint("Radius", 0, 0.7235),
    Sketcher.Constraint("Radius", 1, 0.2528),
    Sketcher.Constraint("Radius", 5, 0.2625),
    Sketcher.Constraint("Radius", 7, 1.3132),
    Sketcher.Constraint("Radius", 8, 2.4978),
    Sketcher.Constraint("Radius", 9, 1.3147),
    Sketcher.Constraint("Radius", 11, 0.2555),
    Sketcher.Constraint("Radius", 15, 0.2597),
    Sketcher.Constraint("Radius", 17, 1.3089),
    Sketcher.Constraint("Radius", 18, 2.5022),
    Sketcher.Constraint("Radius", 19, 1.3102),
    Sketcher.Constraint("Radius", 27, 1.3117),
    Sketcher.Constraint("Radius", 37, 1.3092),
    Sketcher.Constraint("Radius", 40, 0.7258),
    Sketcher.Constraint("Radius", 46, 0.7254),
    Sketcher.Constraint("Radius", 47, 1.3097),
    Sketcher.Constraint("Radius", 56, 0.7189),
    Sketcher.Constraint("Radius", 59, 1.3137),
    Sketcher.Constraint("Radius", 60, 0.7217),
    Sketcher.Constraint("Radius", 66, 0.7212),
    Sketcher.Constraint("Radius", 69, 1.3143),
    Sketcher.Constraint("DistanceY", -1, 1, 6, 3, 2.24),
    Sketcher.Constraint("DistanceX", -1, 1, 8, 3, 1.05),
    Sketcher.Constraint("DistanceY", -1, 1, 9, 3, 2.49),
    Sketcher.Constraint("DistanceX", -1, 1, 79, 3, 2.45),
    Sketcher.Constraint("DistanceX", -1, 1, 0, 3, 1.989),
    Sketcher.Constraint("DistanceX", -1, 1, 1, 3, 1.554),
    Sketcher.Constraint("DistanceY", -1, 1, 7, 3, 1.872),
    Sketcher.Constraint("DistanceX", -1, 1, 10, 3, 0.558),
    Sketcher.Constraint("DistanceY", -1, 1, 10, 3, 2.423),
    Sketcher.Constraint("DistanceX", 16, 3, -1, 1, 0.769),
    Sketcher.Constraint("DistanceY", -1, 1, 16, 3, 1.096),
    Sketcher.Constraint("DistanceY", 26, 3, -1, 1, 0.335),
    Sketcher.Constraint("DistanceX", 27, 3, -1, 1, 0.219),
    Sketcher.Constraint("DistanceY", 27, 3, -1, 1, 0.796),
    Sketcher.Constraint("DistanceY", 31, 3, -1, 1, 0.322),
    Sketcher.Constraint("DistanceY", 41, 3, -1, 1, 1.212),
    Sketcher.Constraint("DistanceY", 45, 3, -1, 1, 1.209),
    Sketcher.Constraint("DistanceY", 47, 3, -1, 1, 0.668),
    Sketcher.Constraint("DistanceX", -1, 1, 51, 3, 1.976),
    Sketcher.Constraint("DistanceX", -1, 1, 57, 3, 2.938),
    Sketcher.Constraint("DistanceX", -1, 1, 59, 3, 2.319),
    Sketcher.Constraint("DistanceX", -1, 1, 61, 3, 2.866),
    Sketcher.Constraint("DistanceX", -1, 1, 65, 3, 2.863),
    Sketcher.Constraint("DistanceX", -1, 1, 0, 2, 1.322),
    Sketcher.Constraint("DistanceX", -1, 1, 2, 2, 1.271),
    Sketcher.Constraint("DistanceY", -1, 1, 6, 2, 2.689),
    Sketcher.Constraint("DistanceX", 10, 2, -1, 1, 0.112),
    Sketcher.Constraint("DistanceX", -1, 1, 12, 2, 0.068),
    Sketcher.Constraint("DistanceY", -1, 1, 15, 2, 1.766),
    Sketcher.Constraint("DistanceX", 19, 2, -1, 1, 1.035),
    Sketcher.Constraint("DistanceX", 20, 2, -1, 1, 0.865),
])
pad1 = doc.addObject("PartDesign::Pad", "Pad")
body.addObject(pad1)
pad1.Profile = sketch1
pad1.Length = 5

sketch2 = doc.addObject("Sketcher::SketchObject", "Sketch001")
body.addObject(sketch2)
sketch2.AttachmentSupport = (doc.XY_Plane, [""])
sketch2.MapMode = "FlatFace"
sketch2.AttachmentOffset = App.Placement(Vector(0, 0, 5), App.Rotation())
sketch2.addGeometry([
    Part.ArcOfCircle(Part.Circle(Vector(1.052857, 0.603934, 0), Vector(0, 0, 1), 2.497806), math.radians(16.788509), math.radians(28.213682)),
    Part.ArcOfCircle(Part.Circle(Vector(1.0508, 0.6032, 0), Vector(0, 0, 1), 2.5), math.radians(28.206224), math.radians(61.791756)),
    Part.ArcOfCircle(Part.Circle(Vector(1.0508, 0.6032, 0), Vector(0, 0, 1), 2.500016), math.radians(61.791756), math.radians(73.206803)),
    Part.ArcOfCircle(Part.Circle(Vector(1.0508, 0.6032, 0), Vector(0, 0, 1), 2.5), math.radians(73.206803), math.radians(106.791003)),
    Part.ArcOfCircle(Part.Circle(Vector(1.050066, 0.605257, 0), Vector(0, 0, 1), 2.497806), math.radians(106.788509), math.radians(118.213682)),
    Part.ArcOfCircle(Part.Circle(Vector(1.0508, 0.6032, 0), Vector(0, 0, 1), 2.5), math.radians(118.206224), math.radians(151.793776)),
    Part.ArcOfCircle(Part.Circle(Vector(1.052777, 0.602263, 0), Vector(0, 0, 1), 2.502151), math.radians(151.79627), math.radians(163.201539)),
    Part.ArcOfCircle(Part.Circle(Vector(1.0508, 0.6032, 0), Vector(0, 0, 1), 2.5), math.radians(163.208997), math.radians(196.793197)),
    Part.ArcOfCircle(Part.Circle(Vector(1.0508, 0.6032, 0), Vector(0, 0, 1), 2.499966), math.radians(-163.206803), math.radians(-151.791756)),
    Part.ArcOfCircle(Part.Circle(Vector(1.0508, 0.6032, 0), Vector(0, 0, 1), 2.5), math.radians(-151.791756), math.radians(-118.206224)),
    Part.ArcOfCircle(Part.Circle(Vector(1.051737, 0.605177, 0), Vector(0, 0, 1), 2.502151), math.radians(-118.20373), math.radians(-106.798461)),
    Part.ArcOfCircle(Part.Circle(Vector(1.0508, 0.6032, 0), Vector(0, 0, 1), 2.5), math.radians(-106.791003), math.radians(-73.206803)),
    Part.ArcOfCircle(Part.Circle(Vector(1.0508, 0.6032, 0), Vector(0, 0, 1), 2.499966), math.radians(-73.206803), math.radians(-61.791756)),
    Part.ArcOfCircle(Part.Circle(Vector(1.0508, 0.6032, 0), Vector(0, 0, 1), 2.5), math.radians(-61.791756), math.radians(-28.208244)),
    Part.ArcOfCircle(Part.Circle(Vector(1.0508, 0.6032, 0), Vector(0, 0, 1), 2.500016), math.radians(-28.208244), math.radians(-16.793197)),
    Part.ArcOfCircle(Part.Circle(Vector(1.0508, 0.6032, 0), Vector(0, 0, 1), 2.5), math.radians(-16.793197), math.radians(16.791003)),
], False)
sketch2.addConstraint([
    Sketcher.Constraint("Coincident", 0, 2, 1, 1),
    Sketcher.Constraint("Coincident", 1, 2, 2, 1),
    Sketcher.Constraint("Coincident", 2, 2, 3, 1),
    Sketcher.Constraint("Coincident", 3, 2, 4, 1),
    Sketcher.Constraint("Coincident", 4, 2, 5, 1),
    Sketcher.Constraint("Coincident", 5, 2, 6, 1),
    Sketcher.Constraint("Coincident", 6, 2, 7, 1),
    Sketcher.Constraint("Coincident", 7, 2, 8, 1),
    Sketcher.Constraint("Coincident", 8, 2, 9, 1),
    Sketcher.Constraint("Coincident", 9, 2, 10, 1),
    Sketcher.Constraint("Coincident", 10, 2, 11, 1),
    Sketcher.Constraint("Coincident", 11, 2, 12, 1),
    Sketcher.Constraint("Coincident", 12, 2, 13, 1),
    Sketcher.Constraint("Coincident", 13, 2, 14, 1),
    Sketcher.Constraint("Coincident", 14, 2, 15, 1),
    Sketcher.Constraint("Coincident", 15, 2, 0, 1),
    Sketcher.Constraint("Coincident", 2, 3, 1, 3),
    Sketcher.Constraint("Coincident", 3, 3, 1, 3),
    Sketcher.Constraint("Coincident", 5, 3, 1, 3),
    Sketcher.Constraint("Coincident", 7, 3, 1, 3),
    Sketcher.Constraint("Coincident", 8, 3, 1, 3),
    Sketcher.Constraint("Coincident", 9, 3, 1, 3),
    Sketcher.Constraint("Coincident", 11, 3, 1, 3),
    Sketcher.Constraint("Coincident", 12, 3, 1, 3),
    Sketcher.Constraint("Coincident", 13, 3, 1, 3),
    Sketcher.Constraint("Coincident", 14, 3, 1, 3),
    Sketcher.Constraint("Coincident", 15, 3, 1, 3),
    Sketcher.Constraint("Radius", 1, 2.5),
    Sketcher.Constraint("Radius", 5, 2.5),
    Sketcher.Constraint("Radius", 7, 2.5),
    Sketcher.Constraint("Radius", 11, 2.5),
    Sketcher.Constraint("DistanceY", 9, 2, -1, 1, 1.6),
    Sketcher.Constraint("Radius", 0, 2.4978),
    Sketcher.Constraint("Radius", 4, 2.4978),
    Sketcher.Constraint("Radius", 6, 2.5022),
    Sketcher.Constraint("Radius", 10, 2.5022),
    Sketcher.Constraint("DistanceX", -1, 1, 4, 3, 1.05),
    Sketcher.Constraint("DistanceY", -1, 1, 0, 3, 0.604),
    Sketcher.Constraint("DistanceX", -1, 1, 0, 2, 3.254),
    Sketcher.Constraint("DistanceX", -1, 1, 2, 2, 1.773),
    Sketcher.Constraint("DistanceY", 7, 2, -1, 1, 0.119),
    Sketcher.Constraint("DistanceX", -1, 1, 11, 2, 1.773),
    Sketcher.Constraint("DistanceX", -1, 1, 13, 2, 3.254),
    Sketcher.Constraint("DistanceY", 14, 2, -1, 1, 0.119),
    Sketcher.Constraint("DistanceY", 10, 3, 1, 2, 2.201),
    Sketcher.Constraint("DistanceX", 3, 2, 1, 2, 1.904),
    Sketcher.Constraint("DistanceX", 4, 2, 2, 2, 1.904),
    Sketcher.Constraint("DistanceX", 5, 2, 3, 2, 1.481),
    Sketcher.Constraint("DistanceY", 6, 2, 4, 2, 1.481),
    Sketcher.Constraint("DistanceX", 8, 2, 1, 3, 2.203),
    Sketcher.Constraint("DistanceY", 10, 2, 7, 2, 1.671),
    Sketcher.Constraint("DistanceY", 13, 2, 15, 2, 1.904),
    Sketcher.Constraint("DistanceX", -1, 1, 12, 2, 2.2325),
])
pad2 = doc.addObject("PartDesign::Pad", "Pad001")
body.addObject(pad2)
pad2.Profile = sketch2
pad2.Length = 8

sketch3 = doc.addObject("Sketcher::SketchObject", "Sketch002")
body.addObject(sketch3)
sketch3.AttachmentSupport = (doc.XY_Plane, [""])
sketch3.MapMode = "FlatFace"
sketch3.AttachmentOffset = App.Placement(Vector(0, 0, 13), App.Rotation())
sketch3.addGeometry(Part.Circle(Vector(1.0508, 0.6032, 0), Vector(0, 0, 1), 1.15), False)
sketch3.addConstraint([
    Sketcher.Constraint("Diameter", 0, 2.3),
    Sketcher.Constraint("DistanceX", -1, 1, 0, 3, 1.0508),
    Sketcher.Constraint("DistanceY", -1, 1, 0, 3, 0.6032),
])
pocket1 = doc.addObject("PartDesign::Pocket", "Pocket")
body.addObject(pocket1)
pocket1.Profile = sketch3
pocket1.Length = 13

doc.recompute()
